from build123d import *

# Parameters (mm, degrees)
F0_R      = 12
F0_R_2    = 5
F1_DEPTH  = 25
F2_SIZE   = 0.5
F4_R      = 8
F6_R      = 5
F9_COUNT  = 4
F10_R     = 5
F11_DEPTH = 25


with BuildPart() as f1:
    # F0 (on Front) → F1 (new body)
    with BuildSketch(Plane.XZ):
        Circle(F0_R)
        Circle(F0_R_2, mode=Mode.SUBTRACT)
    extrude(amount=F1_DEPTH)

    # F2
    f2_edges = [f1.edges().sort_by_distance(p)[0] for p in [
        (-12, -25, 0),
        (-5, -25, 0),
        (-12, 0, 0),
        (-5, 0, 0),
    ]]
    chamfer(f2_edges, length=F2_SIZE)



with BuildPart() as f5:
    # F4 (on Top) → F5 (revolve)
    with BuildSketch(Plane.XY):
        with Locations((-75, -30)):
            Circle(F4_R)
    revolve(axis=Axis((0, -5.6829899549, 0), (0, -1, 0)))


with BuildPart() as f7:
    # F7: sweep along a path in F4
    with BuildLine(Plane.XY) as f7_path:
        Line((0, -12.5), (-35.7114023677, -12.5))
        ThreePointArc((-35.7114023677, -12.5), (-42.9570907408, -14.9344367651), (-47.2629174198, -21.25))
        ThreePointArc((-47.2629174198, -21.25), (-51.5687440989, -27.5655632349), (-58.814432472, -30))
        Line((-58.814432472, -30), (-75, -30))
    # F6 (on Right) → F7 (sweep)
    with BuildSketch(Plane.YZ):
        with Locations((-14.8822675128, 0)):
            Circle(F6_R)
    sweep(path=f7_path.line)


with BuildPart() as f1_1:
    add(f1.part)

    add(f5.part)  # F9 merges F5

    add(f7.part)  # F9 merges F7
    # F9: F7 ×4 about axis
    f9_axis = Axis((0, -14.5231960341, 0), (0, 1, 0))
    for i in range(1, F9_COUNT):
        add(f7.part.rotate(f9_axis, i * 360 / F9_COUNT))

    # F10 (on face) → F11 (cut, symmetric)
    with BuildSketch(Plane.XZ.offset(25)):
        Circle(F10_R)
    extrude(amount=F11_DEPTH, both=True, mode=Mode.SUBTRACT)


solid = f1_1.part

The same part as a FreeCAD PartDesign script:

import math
import FreeCAD as App
import Part
import Sketcher


def edges_at(feature, points):
    """Names of the edges that pass closest to the given points."""
    edges = feature.Shape.Edges
    near = lambda p: min(range(len(edges)), key=lambda i: edges[i].distToShape(Part.Vertex(*p))[0])
    return sorted({f"Edge{near(p) + 1}" for p in points})

doc = App.newDocument("Part")
body = doc.addObject("PartDesign::Body", "Body")

# Sketch on XZ plane
sketch1 = doc.addObject("Sketcher::SketchObject", "Sketch")
body.addObject(sketch1)
sketch1.AttachmentSupport = (doc.XZ_Plane, [""])
sketch1.MapMode = "FlatFace"
sketch1.addGeometry([
    Part.Circle(App.Vector(0, 0, 0), App.Vector(0, 0, 1), 12),
    Part.Circle(App.Vector(0, 0, 0), App.Vector(0, 0, 1), 5),
], False)
sketch1.addConstraint([
    Sketcher.Constraint("Coincident", 0, 3, -1, 1),
    Sketcher.Constraint("Coincident", 1, 3, -1, 1),
    Sketcher.Constraint("Diameter", 0, 24.0),
    Sketcher.Constraint("Diameter", 1, 10.0),
])
pad1 = doc.addObject("PartDesign::Pad", "Pad")
body.addObject(pad1)
pad1.Profile = sketch1
pad1.Length = 25
doc.recompute()

chamfer = doc.addObject("PartDesign::Chamfer", "Chamfer")
body.addObject(chamfer)
chamfer.Base = (pad1, edges_at(pad1, [
    (-12, -25, 0),
    (-5, -25, 0),
    (-12, 0, 0),
    (-5, 0, 0),
]))
chamfer.Size = 0.5
body2 = doc.addObject("PartDesign::Body", "Body001")

# Sketch on XY plane
sketch2 = doc.addObject("Sketcher::SketchObject", "Sketch001")
body2.addObject(sketch2)
sketch2.AttachmentSupport = (doc.getObject("XY_Plane001"), [""])
sketch2.MapMode = "FlatFace"
sketch2.addGeometry(Part.Circle(App.Vector(-75, -30, 0), App.Vector(0, 0, 1), 8), False)
sketch2.addConstraint([
    Sketcher.Constraint("Diameter", 0, 16.0),
    Sketcher.Constraint("DistanceX", 0, 3, -1, 1, 75.0),
    Sketcher.Constraint("DistanceY", 0, 3, -1, 1, 30.0),
])
revolution = doc.addObject("PartDesign::Revolution", "Revolution")
body2.addObject(revolution)
revolution.Profile = sketch2
revolution.ReferenceAxis = (sketch2, ["V_Axis"])
revolution.Angle = 360
body3 = doc.addObject("PartDesign::Body", "Body002")

# Sketch on YZ plane
sketch3 = doc.addObject("Sketcher::SketchObject", "Sketch002")
body3.addObject(sketch3)
sketch3.AttachmentSupport = (doc.getObject("YZ_Plane002"), [""])
sketch3.MapMode = "FlatFace"
sketch3.addGeometry(Part.Circle(App.Vector(-14.882268, 0, 0), App.Vector(0, 0, 1), 5), False)
sketch3.addConstraint([
    Sketcher.Constraint("PointOnObject", 0, 3, -1),
    Sketcher.Constraint("Diameter", 0, 10.0),
    Sketcher.Constraint("DistanceX", 0, 3, -1, 1, 14.882268),
])

# Sketch on XY plane
sketch4 = doc.addObject("Sketcher::SketchObject", "Sketch003")
body3.addObject(sketch4)
sketch4.AttachmentSupport = (doc.getObject("XY_Plane002"), [""])
sketch4.MapMode = "FlatFace"
sketch4.addGeometry([
    Part.LineSegment(App.Vector(0, -12.5, 0), App.Vector(-35.711402, -12.5, 0)),
    Part.ArcOfCircle(Part.Circle(App.Vector(-35.711402, -24.5, 0), App.Vector(0, 0, 1), 12), math.radians(90), math.radians(164.286139)),
    Part.ArcOfCircle(Part.Circle(App.Vector(-58.814432, -18, 0), App.Vector(0, 0, 1), 12), math.radians(-90), math.radians(-15.713861)),
    Part.LineSegment(App.Vector(-58.814432, -30, 0), App.Vector(-75, -30, 0)),
], False)
sketch4.addConstraint([
    Sketcher.Constraint("Tangent", 0, 2, 1, 1),
    Sketcher.Constraint("Tangent", 1, 2, 2, 2),
    Sketcher.Constraint("Tangent", 2, 1, 3, 1),
    Sketcher.Constraint("Horizontal", 0),
    Sketcher.Constraint("Horizontal", 3),
    Sketcher.Constraint("Equal", 1, 2),
    Sketcher.Constraint("PointOnObject", 0, 1, -2),
    Sketcher.Constraint("Radius", 1, 12.0),
    Sketcher.Constraint("DistanceY", 2, 3, -1, 1, 18.0),
    Sketcher.Constraint("DistanceX", 3, 2, -1, 1, 75.0),
    Sketcher.Constraint("DistanceY", 1, 3, -1, 1, 24.5),
    Sketcher.Constraint("DistanceX", 0, 2, 0, 1, 35.711402),
])
doc.recompute()

additivepipe = doc.addObject("PartDesign::AdditivePipe", "AdditivePipe")
body3.addObject(additivepipe)
additivepipe.Profile = sketch3
additivepipe.Spine = (sketch4, ["Edge1", "Edge2", "Edge3", "Edge4"])
body.AllowCompound = True
doc.recompute()

boolean = doc.addObject("PartDesign::Boolean", "Boolean")
body.addObject(boolean)
boolean.Type = "Fuse"
boolean.addObjects([body2])
doc.recompute()

body4 = doc.addObject("PartDesign::Body", "Body003")
body4.BaseFeature = body3
boolean2 = doc.addObject("PartDesign::Boolean", "Boolean001")
body.addObject(boolean2)
boolean2.Type = "Fuse"
boolean2.addObjects([body4])
doc.recompute()

body5 = doc.addObject("PartDesign::Body", "Body004")
body5.BaseFeature = body3
body5.Placement = App.Placement(App.Vector(0, 0, 0), App.Rotation(App.Vector(0, 1, 0), 90))
boolean3 = doc.addObject("PartDesign::Boolean", "Boolean002")
body.addObject(boolean3)
boolean3.Type = "Fuse"
boolean3.addObjects([body5])
doc.recompute()

body6 = doc.addObject("PartDesign::Body", "Body005")
body6.BaseFeature = body3
body6.Placement = App.Placement(App.Vector(0, 0, 0), App.Rotation(App.Vector(0, 1, 0), 180))
boolean4 = doc.addObject("PartDesign::Boolean", "Boolean003")
body.addObject(boolean4)
boolean4.Type = "Fuse"
boolean4.addObjects([body6])
doc.recompute()

body3.Placement = App.Placement(App.Vector(0, 0, 0), App.Rotation(App.Vector(0, 1, 0), 270))
boolean5 = doc.addObject("PartDesign::Boolean", "Boolean004")
body.addObject(boolean5)
boolean5.Type = "Fuse"
boolean5.addObjects([body3])

# Sketch on XZ plane
sketch5 = doc.addObject("Sketcher::SketchObject", "Sketch004")
body.addObject(sketch5)
sketch5.AttachmentSupport = (doc.XZ_Plane, [""])
sketch5.MapMode = "FlatFace"
sketch5.AttachmentOffset = App.Placement(App.Vector(0, 0, 25), App.Rotation())
sketch5.addGeometry(Part.Circle(App.Vector(0, 0, 0), App.Vector(0, 0, 1), 5), False)
sketch5.addConstraint([
    Sketcher.Constraint("Coincident", 0, 3, -1, 1),
    Sketcher.Constraint("Diameter", 0, 10.0),
])
pocket1 = doc.addObject("PartDesign::Pocket", "Pocket")
body.addObject(pocket1)
pocket1.Profile = sketch5
pocket1.Length = 50
pocket1.Midplane = True

doc.recompute()
